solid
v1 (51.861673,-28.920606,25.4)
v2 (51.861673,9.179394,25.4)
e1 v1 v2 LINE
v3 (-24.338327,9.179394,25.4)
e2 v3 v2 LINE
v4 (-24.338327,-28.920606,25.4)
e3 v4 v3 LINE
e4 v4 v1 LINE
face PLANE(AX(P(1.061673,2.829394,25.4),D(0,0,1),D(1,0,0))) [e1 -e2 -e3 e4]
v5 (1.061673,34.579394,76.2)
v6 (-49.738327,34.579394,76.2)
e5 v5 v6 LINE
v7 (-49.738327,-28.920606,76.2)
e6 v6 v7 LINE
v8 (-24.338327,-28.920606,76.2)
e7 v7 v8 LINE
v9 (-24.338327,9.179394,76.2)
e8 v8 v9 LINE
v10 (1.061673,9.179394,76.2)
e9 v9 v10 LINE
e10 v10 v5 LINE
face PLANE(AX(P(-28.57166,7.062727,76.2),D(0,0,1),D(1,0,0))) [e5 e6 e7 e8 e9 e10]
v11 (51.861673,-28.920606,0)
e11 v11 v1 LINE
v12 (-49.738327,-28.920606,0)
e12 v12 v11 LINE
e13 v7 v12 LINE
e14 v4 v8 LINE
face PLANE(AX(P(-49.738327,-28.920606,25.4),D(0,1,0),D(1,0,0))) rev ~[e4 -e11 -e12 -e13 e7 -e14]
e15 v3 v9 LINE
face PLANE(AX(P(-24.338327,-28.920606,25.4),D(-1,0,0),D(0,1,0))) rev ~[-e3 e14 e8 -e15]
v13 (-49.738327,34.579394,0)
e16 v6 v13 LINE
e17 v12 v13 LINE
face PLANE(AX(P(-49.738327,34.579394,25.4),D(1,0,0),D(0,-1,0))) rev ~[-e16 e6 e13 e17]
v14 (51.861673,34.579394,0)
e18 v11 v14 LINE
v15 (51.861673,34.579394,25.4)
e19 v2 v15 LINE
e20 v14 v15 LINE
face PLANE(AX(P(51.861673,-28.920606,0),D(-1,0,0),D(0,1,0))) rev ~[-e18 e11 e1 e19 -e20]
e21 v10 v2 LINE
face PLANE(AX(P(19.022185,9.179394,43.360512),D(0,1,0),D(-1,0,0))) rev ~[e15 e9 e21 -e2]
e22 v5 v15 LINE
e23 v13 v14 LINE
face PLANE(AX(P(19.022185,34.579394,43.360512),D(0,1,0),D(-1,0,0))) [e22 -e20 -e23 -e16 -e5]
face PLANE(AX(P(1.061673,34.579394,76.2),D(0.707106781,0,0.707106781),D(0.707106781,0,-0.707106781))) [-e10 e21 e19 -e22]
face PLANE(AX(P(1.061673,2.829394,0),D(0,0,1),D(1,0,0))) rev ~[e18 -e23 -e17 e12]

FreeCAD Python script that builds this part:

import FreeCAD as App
import Part
import Sketcher

V = App.Vector
Q = App.Units.Quantity


def add_polygon(sketch, points):
    """Adds a closed chain of lines whose ends are joined by coincident constraints."""
    first, n = sketch.GeometryCount, len(points)
    for a, b in zip(points, points[1:] + points[:1]):
        sketch.addGeometry(Part.LineSegment(App.Vector(*a, 0), App.Vector(*b, 0)), False)
    for i in range(n):
        sketch.addConstraint(Sketcher.Constraint("Coincident", first + i, 2, first + (i + 1) % n, 1))

doc = App.newDocument("Part")
body = doc.addObject("PartDesign::Body", "Body")

# Sketch on XY plane
sketch1 = body.newObject("Sketcher::SketchObject", "Sketch")
sketch1.AttachmentSupport = (doc.getObject("XY_Plane"), [""])
sketch1.MapMode = "FlatFace"
add_polygon(sketch1, [(-50, 35), (-50, -29), (52, -29), (52, 35)])  # lines 0-3
sketch1.addConstraint([
    Sketcher.Constraint("Vertical", 0),
    Sketcher.Constraint("Horizontal", 1),
    Sketcher.Constraint("Vertical", 2),
    Sketcher.Constraint("Horizontal", 3),
    Sketcher.Constraint("DistanceX", 1, 1, 1, 2, Q("4 in")),
    Sketcher.Constraint("DistanceY", 0, 2, 0, 1, Q("2.5 in")),
    Sketcher.Constraint("DistanceX", 0, 2, -1, 1, 49.738327),
    Sketcher.Constraint("DistanceY", 0, 2, -1, 1, 28.920606),
])
pad1 = body.newObject("PartDesign::Pad", "Pad")
pad1.Profile = sketch1
pad1.Length = Q("1 in")

# Sketch on XY plane
sketch2 = body.newObject("Sketcher::SketchObject", "Sketch001")
sketch2.AttachmentSupport = (doc.getObject("XY_Plane"), [""])
sketch2.MapMode = "FlatFace"
sketch2.AttachmentOffset = App.Placement(V(0, 0, 1 * 25.4), App.Rotation())
add_polygon(sketch2, [(-50, -29), (-24, -29), (-24, 9), (1, 9), (1, 35), (-50, 35)])  # lines 0-5
sketch2.addConstraint([
    Sketcher.Constraint("Horizontal", 0),
    Sketcher.Constraint("Vertical", 1),
    Sketcher.Constraint("Horizontal", 2),
    Sketcher.Constraint("Vertical", 3),
    Sketcher.Constraint("Horizontal", 4),
    Sketcher.Constraint("Vertical", 5),
    Sketcher.Constraint("Equal", 0, 2),
    Sketcher.Constraint("Equal", 2, 3),
    Sketcher.Constraint("DistanceX", 0, 1, 0, 2, Q("1 in")),
    Sketcher.Constraint("DistanceY", 1, 1, 1, 2, Q("1.5 in")),
    Sketcher.Constraint("DistanceX", 0, 2, -1, 1, 24.338327),
    Sketcher.Constraint("DistanceY", 0, 2, -1, 1, 28.920606),
])
pad2 = body.newObject("PartDesign::Pad", "Pad001")
pad2.Profile = sketch2
pad2.Length = Q("2 in")

# Sketch on XZ plane
sketch3 = body.newObject("Sketcher::SketchObject", "Sketch002")
sketch3.AttachmentSupport = (doc.getObject("XZ_Plane"), [""])
sketch3.MapMode = "FlatFace"
sketch3.AttachmentOffset = App.Placement(V(0, 0, -34.579394), App.Rotation())
add_polygon(sketch3, [(1, 25), (1, 76), (52, 25)])  # lines 0-2
sketch3.addConstraint([
    Sketcher.Constraint("Vertical", 0),
    Sketcher.Constraint("Horizontal", 2),
    Sketcher.Constraint("Equal", 2, 0),
    Sketcher.Constraint("DistanceX", 2, 2, 2, 1, Q("2 in")),
    Sketcher.Constraint("DistanceY", -1, 1, 0, 2, Q("3 in")),
    Sketcher.Constraint("DistanceX", -1, 1, 0, 2, 1.061673),
])
pad3 = body.newObject("PartDesign::Pad", "Pad002")
pad3.Profile = sketch3
pad3.Length = Q("1 in")

doc.recompute()
